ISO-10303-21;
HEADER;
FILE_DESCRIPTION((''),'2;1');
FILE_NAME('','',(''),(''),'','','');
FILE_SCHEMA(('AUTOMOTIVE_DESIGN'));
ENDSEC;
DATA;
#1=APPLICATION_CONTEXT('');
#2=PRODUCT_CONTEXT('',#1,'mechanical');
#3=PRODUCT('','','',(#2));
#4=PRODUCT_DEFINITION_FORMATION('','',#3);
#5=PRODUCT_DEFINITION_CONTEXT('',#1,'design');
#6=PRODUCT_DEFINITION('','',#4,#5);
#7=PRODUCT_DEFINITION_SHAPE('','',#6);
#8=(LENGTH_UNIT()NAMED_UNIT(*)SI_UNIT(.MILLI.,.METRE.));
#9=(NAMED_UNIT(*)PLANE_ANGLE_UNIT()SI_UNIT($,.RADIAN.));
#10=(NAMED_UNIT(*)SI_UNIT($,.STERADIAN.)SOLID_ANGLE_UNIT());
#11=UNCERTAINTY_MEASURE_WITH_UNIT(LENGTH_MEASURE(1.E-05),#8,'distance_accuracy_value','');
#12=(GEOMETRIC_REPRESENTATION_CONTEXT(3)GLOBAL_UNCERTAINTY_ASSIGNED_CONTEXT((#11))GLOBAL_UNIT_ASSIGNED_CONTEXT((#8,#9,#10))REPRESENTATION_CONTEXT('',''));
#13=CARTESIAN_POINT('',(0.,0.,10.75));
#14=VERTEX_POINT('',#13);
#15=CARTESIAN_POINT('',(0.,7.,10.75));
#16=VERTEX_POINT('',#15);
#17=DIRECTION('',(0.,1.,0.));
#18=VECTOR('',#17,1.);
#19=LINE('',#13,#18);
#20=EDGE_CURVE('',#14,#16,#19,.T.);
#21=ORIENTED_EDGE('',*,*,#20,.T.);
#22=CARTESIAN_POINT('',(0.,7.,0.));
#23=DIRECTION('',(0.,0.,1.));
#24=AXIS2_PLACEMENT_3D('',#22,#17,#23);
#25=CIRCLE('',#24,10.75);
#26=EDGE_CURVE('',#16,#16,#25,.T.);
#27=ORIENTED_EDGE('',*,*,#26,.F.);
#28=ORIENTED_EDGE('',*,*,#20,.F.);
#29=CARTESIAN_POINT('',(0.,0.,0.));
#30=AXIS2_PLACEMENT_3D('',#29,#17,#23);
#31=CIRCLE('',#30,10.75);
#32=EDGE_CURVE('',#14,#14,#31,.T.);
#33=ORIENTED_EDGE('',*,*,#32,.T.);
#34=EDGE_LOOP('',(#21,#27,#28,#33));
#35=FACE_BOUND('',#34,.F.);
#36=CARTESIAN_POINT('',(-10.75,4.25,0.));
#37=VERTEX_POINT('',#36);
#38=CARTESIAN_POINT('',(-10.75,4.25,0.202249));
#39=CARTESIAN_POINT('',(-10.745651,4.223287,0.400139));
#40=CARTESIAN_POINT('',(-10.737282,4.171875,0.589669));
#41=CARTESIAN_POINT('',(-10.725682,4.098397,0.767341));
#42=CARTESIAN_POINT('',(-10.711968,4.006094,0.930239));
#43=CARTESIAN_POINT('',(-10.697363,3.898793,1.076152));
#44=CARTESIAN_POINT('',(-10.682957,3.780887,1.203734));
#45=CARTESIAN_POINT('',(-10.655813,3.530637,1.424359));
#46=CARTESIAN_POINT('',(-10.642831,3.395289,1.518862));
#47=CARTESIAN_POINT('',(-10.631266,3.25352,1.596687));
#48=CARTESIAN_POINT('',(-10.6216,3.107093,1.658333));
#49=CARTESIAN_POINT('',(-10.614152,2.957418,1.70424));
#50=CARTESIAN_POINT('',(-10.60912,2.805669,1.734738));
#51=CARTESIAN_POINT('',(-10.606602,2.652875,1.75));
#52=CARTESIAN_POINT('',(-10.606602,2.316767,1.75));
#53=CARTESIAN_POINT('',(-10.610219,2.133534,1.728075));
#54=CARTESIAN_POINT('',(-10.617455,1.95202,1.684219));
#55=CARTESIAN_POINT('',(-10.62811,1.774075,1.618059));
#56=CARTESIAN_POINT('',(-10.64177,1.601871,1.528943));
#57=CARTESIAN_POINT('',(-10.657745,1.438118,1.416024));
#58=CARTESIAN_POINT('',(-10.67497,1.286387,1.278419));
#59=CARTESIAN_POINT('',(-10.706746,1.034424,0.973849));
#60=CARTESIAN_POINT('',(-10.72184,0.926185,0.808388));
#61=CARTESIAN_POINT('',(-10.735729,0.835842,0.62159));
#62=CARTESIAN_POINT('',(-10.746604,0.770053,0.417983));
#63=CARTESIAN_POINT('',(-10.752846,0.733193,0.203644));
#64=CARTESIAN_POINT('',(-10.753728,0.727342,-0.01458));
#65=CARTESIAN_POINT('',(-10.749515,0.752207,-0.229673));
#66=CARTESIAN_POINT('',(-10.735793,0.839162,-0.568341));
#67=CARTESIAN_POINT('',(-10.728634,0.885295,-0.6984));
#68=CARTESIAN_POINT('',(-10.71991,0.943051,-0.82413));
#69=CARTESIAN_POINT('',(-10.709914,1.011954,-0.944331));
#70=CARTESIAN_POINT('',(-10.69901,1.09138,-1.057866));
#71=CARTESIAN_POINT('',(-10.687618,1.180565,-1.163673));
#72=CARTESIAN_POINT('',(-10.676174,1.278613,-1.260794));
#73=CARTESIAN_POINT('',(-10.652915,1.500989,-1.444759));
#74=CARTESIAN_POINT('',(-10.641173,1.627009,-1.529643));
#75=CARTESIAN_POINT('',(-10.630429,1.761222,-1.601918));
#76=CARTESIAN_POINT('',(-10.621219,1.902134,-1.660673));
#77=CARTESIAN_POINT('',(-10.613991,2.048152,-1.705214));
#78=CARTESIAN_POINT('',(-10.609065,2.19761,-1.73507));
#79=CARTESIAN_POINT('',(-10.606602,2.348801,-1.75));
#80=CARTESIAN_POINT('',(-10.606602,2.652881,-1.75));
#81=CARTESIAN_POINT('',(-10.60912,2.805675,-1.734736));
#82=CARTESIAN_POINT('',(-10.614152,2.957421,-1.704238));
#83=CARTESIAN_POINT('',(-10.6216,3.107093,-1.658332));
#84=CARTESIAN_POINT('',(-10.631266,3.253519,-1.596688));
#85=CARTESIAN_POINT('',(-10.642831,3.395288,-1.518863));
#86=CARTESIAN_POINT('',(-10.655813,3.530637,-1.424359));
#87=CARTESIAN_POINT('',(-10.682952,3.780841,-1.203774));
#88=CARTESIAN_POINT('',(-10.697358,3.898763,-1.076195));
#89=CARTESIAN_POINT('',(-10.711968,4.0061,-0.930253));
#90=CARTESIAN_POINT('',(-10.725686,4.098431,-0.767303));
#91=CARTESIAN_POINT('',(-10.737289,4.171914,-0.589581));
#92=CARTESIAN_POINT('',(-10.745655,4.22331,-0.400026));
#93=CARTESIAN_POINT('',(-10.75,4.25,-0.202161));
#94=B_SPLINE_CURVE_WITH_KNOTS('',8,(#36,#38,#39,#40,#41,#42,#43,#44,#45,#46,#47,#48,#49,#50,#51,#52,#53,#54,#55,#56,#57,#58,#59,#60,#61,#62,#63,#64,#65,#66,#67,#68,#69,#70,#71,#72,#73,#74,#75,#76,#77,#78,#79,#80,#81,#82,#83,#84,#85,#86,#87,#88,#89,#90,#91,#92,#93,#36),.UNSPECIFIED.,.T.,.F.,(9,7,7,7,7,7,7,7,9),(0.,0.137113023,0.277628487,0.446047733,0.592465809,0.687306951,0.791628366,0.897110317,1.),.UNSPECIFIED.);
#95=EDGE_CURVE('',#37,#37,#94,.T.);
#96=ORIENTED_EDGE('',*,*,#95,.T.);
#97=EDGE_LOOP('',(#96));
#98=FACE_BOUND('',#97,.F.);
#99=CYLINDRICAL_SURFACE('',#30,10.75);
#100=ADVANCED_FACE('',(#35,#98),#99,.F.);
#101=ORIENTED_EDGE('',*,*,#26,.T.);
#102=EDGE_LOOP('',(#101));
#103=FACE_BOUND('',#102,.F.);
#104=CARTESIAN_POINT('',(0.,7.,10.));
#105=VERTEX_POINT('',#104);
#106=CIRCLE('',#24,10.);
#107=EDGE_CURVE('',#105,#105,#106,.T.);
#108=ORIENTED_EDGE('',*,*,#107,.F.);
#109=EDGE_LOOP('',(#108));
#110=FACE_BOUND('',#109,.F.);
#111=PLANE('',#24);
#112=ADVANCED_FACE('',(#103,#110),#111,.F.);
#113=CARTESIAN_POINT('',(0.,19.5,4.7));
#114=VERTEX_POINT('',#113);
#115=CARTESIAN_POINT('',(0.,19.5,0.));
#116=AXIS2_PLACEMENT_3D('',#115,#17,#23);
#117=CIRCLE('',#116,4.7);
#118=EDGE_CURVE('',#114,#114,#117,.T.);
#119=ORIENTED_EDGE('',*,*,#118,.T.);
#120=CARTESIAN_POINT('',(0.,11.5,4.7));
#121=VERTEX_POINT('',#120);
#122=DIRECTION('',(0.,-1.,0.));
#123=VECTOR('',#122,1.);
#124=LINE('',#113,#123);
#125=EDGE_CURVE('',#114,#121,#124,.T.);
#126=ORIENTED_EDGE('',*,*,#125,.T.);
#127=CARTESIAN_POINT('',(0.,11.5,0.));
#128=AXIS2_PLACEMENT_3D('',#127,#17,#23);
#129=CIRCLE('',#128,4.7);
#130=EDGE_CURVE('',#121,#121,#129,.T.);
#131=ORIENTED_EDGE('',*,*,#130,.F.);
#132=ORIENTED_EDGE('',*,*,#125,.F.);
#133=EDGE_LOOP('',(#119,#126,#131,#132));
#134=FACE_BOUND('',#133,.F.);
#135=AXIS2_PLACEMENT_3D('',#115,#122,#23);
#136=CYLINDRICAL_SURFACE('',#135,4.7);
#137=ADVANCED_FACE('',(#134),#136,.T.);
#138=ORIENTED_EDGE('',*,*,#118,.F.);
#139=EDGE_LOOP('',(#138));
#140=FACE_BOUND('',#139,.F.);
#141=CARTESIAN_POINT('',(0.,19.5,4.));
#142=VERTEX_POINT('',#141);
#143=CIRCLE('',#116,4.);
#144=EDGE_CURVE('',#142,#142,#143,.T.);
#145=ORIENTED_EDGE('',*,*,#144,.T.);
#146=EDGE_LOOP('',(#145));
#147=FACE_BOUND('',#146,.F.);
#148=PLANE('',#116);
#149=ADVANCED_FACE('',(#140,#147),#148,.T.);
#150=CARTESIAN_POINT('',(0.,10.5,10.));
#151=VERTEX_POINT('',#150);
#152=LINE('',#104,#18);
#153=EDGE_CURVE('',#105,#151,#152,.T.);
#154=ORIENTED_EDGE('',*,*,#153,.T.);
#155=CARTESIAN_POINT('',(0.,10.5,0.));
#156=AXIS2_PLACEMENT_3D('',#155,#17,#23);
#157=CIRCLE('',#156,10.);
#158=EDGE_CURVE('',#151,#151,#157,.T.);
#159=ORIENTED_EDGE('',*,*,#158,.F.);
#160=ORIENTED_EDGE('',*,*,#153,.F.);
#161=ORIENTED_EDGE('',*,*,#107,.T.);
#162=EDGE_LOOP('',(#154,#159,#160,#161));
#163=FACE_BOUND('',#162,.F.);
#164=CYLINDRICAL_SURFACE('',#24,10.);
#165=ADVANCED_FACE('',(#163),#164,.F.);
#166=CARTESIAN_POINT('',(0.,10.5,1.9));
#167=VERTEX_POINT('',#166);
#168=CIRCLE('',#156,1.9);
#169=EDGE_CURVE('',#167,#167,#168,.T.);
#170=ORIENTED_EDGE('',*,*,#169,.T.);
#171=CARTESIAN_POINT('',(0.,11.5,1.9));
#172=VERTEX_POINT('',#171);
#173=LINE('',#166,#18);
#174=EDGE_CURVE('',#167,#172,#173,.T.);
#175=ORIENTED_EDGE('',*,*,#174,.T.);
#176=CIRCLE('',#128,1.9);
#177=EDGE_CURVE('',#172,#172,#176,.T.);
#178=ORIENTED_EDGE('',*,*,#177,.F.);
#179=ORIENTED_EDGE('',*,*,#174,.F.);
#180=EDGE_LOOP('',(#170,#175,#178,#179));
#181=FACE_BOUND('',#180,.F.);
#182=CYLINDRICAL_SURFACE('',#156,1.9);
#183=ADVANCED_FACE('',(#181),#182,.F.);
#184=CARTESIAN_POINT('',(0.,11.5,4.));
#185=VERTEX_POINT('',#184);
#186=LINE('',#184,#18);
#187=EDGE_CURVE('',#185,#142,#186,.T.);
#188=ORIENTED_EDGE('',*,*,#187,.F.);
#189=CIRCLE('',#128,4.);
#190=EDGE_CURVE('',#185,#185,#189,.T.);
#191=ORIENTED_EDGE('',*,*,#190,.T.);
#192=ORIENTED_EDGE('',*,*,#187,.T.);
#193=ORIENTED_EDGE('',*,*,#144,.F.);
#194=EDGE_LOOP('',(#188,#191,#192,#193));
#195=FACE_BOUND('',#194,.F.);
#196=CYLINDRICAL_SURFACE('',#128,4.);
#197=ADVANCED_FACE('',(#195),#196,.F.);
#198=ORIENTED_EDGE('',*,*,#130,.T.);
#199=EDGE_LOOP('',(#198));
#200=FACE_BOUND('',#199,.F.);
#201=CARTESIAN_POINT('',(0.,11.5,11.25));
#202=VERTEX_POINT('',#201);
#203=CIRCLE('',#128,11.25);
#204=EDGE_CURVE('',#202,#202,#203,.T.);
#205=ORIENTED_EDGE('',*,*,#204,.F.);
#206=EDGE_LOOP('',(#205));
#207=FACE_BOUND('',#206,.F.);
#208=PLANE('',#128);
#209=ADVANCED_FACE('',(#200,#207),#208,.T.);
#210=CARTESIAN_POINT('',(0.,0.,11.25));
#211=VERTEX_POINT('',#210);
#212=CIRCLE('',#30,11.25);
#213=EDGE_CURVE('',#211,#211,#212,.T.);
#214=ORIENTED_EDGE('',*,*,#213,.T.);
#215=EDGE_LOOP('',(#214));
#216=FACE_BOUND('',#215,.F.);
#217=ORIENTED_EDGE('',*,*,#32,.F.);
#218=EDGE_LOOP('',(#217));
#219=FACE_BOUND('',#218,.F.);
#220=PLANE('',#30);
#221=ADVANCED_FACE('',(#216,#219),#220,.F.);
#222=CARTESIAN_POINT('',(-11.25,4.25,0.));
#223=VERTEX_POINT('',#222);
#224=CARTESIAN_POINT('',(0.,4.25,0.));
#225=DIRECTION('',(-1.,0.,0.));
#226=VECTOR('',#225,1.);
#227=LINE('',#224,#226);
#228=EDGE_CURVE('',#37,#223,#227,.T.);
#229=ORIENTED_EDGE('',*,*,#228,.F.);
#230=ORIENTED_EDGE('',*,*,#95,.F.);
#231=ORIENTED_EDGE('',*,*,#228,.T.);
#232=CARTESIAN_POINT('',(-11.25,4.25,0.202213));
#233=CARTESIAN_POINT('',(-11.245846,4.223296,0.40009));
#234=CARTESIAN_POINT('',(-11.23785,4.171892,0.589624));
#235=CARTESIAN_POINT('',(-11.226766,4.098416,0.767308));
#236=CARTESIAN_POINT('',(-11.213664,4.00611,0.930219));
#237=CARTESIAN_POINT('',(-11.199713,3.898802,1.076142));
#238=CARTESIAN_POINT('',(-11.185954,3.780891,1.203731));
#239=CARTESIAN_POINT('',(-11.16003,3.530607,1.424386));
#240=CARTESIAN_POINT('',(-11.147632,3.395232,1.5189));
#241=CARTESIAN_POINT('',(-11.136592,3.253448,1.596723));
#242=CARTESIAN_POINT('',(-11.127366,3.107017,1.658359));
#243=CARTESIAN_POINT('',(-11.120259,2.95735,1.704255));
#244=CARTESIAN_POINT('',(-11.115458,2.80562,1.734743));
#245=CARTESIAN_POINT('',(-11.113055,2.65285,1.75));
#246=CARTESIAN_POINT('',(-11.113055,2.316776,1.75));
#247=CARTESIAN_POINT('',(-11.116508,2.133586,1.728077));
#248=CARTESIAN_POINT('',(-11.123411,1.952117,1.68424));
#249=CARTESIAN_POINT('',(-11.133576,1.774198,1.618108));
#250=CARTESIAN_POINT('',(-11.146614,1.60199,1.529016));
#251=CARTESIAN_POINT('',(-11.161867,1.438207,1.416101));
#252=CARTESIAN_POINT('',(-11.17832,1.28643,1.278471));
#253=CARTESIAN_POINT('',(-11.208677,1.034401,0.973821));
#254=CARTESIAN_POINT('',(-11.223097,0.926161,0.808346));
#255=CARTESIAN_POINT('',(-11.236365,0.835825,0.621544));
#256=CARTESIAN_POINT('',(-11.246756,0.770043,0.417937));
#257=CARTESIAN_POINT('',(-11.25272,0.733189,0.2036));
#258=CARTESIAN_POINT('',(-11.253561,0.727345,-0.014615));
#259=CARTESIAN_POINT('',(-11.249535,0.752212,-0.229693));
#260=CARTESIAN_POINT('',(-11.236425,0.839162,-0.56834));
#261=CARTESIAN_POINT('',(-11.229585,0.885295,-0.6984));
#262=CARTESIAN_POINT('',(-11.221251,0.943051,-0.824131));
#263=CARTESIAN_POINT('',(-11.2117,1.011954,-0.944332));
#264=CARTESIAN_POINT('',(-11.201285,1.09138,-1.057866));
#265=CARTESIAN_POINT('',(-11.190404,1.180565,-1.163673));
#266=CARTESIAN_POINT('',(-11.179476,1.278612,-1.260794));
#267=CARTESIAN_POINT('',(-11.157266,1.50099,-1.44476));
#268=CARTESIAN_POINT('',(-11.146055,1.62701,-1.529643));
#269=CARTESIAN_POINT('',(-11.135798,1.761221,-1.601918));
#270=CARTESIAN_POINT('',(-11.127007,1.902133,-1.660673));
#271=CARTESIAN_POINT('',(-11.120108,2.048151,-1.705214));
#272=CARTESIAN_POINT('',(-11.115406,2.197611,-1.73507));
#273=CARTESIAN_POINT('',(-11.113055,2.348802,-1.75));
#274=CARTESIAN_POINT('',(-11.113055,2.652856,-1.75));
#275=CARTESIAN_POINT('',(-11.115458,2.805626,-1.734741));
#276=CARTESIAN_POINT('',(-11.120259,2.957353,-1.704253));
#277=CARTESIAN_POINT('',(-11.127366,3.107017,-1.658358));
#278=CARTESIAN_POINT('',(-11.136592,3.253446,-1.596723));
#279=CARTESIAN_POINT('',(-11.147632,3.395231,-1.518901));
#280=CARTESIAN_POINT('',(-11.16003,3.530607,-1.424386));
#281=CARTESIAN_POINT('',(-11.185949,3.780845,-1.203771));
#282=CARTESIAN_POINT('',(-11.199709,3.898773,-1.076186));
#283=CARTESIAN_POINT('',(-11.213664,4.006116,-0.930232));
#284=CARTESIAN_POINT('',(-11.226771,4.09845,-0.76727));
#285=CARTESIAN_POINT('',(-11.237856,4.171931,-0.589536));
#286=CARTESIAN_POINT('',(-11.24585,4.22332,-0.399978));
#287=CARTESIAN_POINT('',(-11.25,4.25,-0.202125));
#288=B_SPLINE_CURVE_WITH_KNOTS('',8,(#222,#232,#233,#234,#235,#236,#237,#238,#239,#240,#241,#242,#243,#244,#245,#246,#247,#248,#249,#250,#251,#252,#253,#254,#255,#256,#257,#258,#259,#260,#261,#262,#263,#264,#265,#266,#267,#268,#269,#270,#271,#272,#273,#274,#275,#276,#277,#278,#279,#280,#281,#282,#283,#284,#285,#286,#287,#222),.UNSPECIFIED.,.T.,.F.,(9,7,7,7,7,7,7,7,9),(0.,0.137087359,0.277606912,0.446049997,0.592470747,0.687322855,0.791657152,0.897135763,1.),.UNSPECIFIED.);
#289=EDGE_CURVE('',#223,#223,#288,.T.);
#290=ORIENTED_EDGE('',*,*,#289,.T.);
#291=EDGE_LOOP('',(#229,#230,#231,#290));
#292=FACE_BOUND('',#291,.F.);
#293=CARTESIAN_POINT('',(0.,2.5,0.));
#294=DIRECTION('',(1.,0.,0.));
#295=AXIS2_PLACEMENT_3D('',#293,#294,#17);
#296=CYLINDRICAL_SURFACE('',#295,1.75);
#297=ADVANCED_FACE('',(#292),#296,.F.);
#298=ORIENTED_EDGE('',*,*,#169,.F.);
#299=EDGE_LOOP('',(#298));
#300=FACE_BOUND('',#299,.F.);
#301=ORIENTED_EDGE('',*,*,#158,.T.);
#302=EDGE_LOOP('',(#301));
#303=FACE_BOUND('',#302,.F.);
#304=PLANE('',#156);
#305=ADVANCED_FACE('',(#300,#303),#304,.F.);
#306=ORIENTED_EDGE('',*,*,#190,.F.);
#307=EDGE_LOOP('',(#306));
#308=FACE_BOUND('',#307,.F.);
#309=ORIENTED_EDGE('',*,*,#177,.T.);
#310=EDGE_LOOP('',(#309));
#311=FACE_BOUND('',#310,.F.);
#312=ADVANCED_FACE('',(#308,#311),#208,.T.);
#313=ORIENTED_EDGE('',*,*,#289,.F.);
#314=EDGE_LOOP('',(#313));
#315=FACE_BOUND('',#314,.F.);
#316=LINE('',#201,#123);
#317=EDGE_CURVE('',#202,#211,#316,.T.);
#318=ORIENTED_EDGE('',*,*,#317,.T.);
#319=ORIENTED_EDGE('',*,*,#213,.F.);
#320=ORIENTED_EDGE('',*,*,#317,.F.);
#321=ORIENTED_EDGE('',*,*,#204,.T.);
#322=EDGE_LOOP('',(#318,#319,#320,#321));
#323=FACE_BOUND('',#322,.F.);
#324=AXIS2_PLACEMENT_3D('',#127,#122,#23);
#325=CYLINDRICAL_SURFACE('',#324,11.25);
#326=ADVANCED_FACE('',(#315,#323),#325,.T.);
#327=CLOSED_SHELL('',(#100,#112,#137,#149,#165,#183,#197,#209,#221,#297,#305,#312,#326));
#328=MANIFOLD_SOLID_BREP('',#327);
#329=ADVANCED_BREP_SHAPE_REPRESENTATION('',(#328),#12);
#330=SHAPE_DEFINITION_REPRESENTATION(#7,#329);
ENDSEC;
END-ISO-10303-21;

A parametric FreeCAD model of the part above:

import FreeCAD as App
import Part
import Sketcher
from FreeCAD import Vector

doc = App.newDocument("Part")
params = doc.addObject("Spreadsheet::Sheet", "Params")
for row, (alias, value) in enumerate([
    ("sketch1_width", "7 mm"),
    ("sketch1_width2", "1 mm"),
    ("sketch1_width3", "8 mm"),
    ("sketch1_width4", "11.5 mm"),
    ("sketch1_height", "0.5 mm"),
    ("revolution_angle", "360 deg"),
    ("sketch2_diameter", "3.5 mm"),
], start=1):
    params.set(f"A{row}", alias)
    params.set(f"B{row}", "=" + value)
    params.setAlias(f"B{row}", alias)

body = doc.addObject("PartDesign::Body", "Body")

sketch1 = doc.addObject("Sketcher::SketchObject", "Sketch")
body.addObject(sketch1)
sketch1.AttachmentSupport = (doc.YZ_Plane, [""])
sketch1.MapMode = "FlatFace"
sketch1.addGeometry([
    Part.LineSegment(Vector(11.5, 11.2, 0), Vector(0, 11.2, 0)),
    Part.LineSegment(Vector(0, 11.2, 0), Vector(0, 10.8, 0)),
    Part.LineSegment(Vector(0, 10.8, 0), Vector(7, 10.8, 0)),
    Part.LineSegment(Vector(7, 10.8, 0), Vector(7, 10, 0)),
    Part.LineSegment(Vector(7, 10, 0), Vector(10.5, 10, 0)),
    Part.LineSegment(Vector(10.5, 10, 0), Vector(10.5, 1.9, 0)),
    Part.LineSegment(Vector(10.5, 1.9, 0), Vector(11.5, 1.9, 0)),
    Part.LineSegment(Vector(11.5, 1.9, 0), Vector(11.5, 4, 0)),
    Part.LineSegment(Vector(11.5, 4, 0), Vector(19.5, 4, 0)),
    Part.LineSegment(Vector(19.5, 4, 0), Vector(19.5, 4.7, 0)),
    Part.LineSegment(Vector(19.5, 4.7, 0), Vector(11.5, 4.7, 0)),
    Part.LineSegment(Vector(11.5, 4.7, 0), Vector(11.5, 11.2, 0)),
], False)
sketch1.addConstraint([
    Sketcher.Constraint("Coincident", 0, 2, 1, 1),
    Sketcher.Constraint("Coincident", 1, 2, 2, 1),
    Sketcher.Constraint("Coincident", 2, 2, 3, 1),
    Sketcher.Constraint("Coincident", 3, 2, 4, 1),
    Sketcher.Constraint("Coincident", 4, 2, 5, 1),
    Sketcher.Constraint("Coincident", 5, 2, 6, 1),
    Sketcher.Constraint("Coincident", 6, 2, 7, 1),
    Sketcher.Constraint("Coincident", 7, 2, 8, 1),
    Sketcher.Constraint("Coincident", 8, 2, 9, 1),
    Sketcher.Constraint("Coincident", 9, 2, 10, 1),
    Sketcher.Constraint("Coincident", 10, 2, 11, 1),
    Sketcher.Constraint("Coincident", 11, 2, 0, 1),
    Sketcher.Constraint("Horizontal", 0),
    Sketcher.Constraint("Vertical", 1),
    Sketcher.Constraint("Horizontal", 2),
    Sketcher.Constraint("Vertical", 3),
    Sketcher.Constraint("Horizontal", 4),
    Sketcher.Constraint("Vertical", 5),
    Sketcher.Constraint("Horizontal", 6),
    Sketcher.Constraint("Vertical", 7),
    Sketcher.Constraint("Horizontal", 8),
    Sketcher.Constraint("Vertical", 9),
    Sketcher.Constraint("Horizontal", 10),
    Sketcher.Constraint("Vertical", 11),
    Sketcher.Constraint("PointOnObject", 0, 2, -2),
    Sketcher.Constraint("Vertical", 7, 2, 10, 2),
    Sketcher.Constraint("DistanceX", 2, 1, 2, 2, 7.0),
    Sketcher.Constraint("DistanceX", 6, 1, 6, 2, 1.0),
    Sketcher.Constraint("DistanceX", 8, 1, 8, 2, 8.0),
    Sketcher.Constraint("DistanceX", 0, 2, 0, 1, 11.5),
    Sketcher.Constraint("DistanceY", 1, 2, 1, 1, 0.5),
    Sketcher.Constraint("DistanceY", 5, 2, 5, 1, 8.1),
    Sketcher.Constraint("DistanceY", 7, 1, 7, 2, 2.1),
    Sketcher.Constraint("DistanceY", 9, 1, 9, 2, 0.7),
    Sketcher.Constraint("DistanceY", -1, 1, 3, 2, 10.0),
    Sketcher.Constraint("DistanceY", 3, 2, 3, 1, 0.75),
])
sketch1.setExpression("Constraints[26]", "Params.sketch1_width")
sketch1.setExpression("Constraints[27]", "Params.sketch1_width2")
sketch1.setExpression("Constraints[28]", "Params.sketch1_width3")
sketch1.setExpression("Constraints[29]", "Params.sketch1_width4")
sketch1.setExpression("Constraints[30]", "Params.sketch1_height")
revolution = doc.addObject("PartDesign::Revolution", "Revolution")
body.addObject(revolution)
revolution.Profile = sketch1
revolution.ReferenceAxis = (sketch1, ["H_Axis"])
revolution.setExpression("Angle", "Params.revolution_angle")

sketch2 = doc.addObject("Sketcher::SketchObject", "Sketch001")
body.addObject(sketch2)
sketch2.AttachmentSupport = (doc.YZ_Plane, [""])
sketch2.MapMode = "FlatFace"
sketch2.addGeometry(Part.Circle(Vector(2.5, 0, 0), Vector(0, 0, 1), 1.8), False)
sketch2.addConstraint([
    Sketcher.Constraint("PointOnObject", 0, 3, -1),
    Sketcher.Constraint("Diameter", 0, 3.5),
    Sketcher.Constraint("DistanceX", -1, 1, 0, 3, 2.5),
])
sketch2.setExpression("Constraints[1]", "Params.sketch2_diameter")
pocket1 = doc.addObject("PartDesign::Pocket", "Pocket")
body.addObject(pocket1)
pocket1.Profile = sketch2
pocket1.Type = "ThroughAll"

doc.recompute()
